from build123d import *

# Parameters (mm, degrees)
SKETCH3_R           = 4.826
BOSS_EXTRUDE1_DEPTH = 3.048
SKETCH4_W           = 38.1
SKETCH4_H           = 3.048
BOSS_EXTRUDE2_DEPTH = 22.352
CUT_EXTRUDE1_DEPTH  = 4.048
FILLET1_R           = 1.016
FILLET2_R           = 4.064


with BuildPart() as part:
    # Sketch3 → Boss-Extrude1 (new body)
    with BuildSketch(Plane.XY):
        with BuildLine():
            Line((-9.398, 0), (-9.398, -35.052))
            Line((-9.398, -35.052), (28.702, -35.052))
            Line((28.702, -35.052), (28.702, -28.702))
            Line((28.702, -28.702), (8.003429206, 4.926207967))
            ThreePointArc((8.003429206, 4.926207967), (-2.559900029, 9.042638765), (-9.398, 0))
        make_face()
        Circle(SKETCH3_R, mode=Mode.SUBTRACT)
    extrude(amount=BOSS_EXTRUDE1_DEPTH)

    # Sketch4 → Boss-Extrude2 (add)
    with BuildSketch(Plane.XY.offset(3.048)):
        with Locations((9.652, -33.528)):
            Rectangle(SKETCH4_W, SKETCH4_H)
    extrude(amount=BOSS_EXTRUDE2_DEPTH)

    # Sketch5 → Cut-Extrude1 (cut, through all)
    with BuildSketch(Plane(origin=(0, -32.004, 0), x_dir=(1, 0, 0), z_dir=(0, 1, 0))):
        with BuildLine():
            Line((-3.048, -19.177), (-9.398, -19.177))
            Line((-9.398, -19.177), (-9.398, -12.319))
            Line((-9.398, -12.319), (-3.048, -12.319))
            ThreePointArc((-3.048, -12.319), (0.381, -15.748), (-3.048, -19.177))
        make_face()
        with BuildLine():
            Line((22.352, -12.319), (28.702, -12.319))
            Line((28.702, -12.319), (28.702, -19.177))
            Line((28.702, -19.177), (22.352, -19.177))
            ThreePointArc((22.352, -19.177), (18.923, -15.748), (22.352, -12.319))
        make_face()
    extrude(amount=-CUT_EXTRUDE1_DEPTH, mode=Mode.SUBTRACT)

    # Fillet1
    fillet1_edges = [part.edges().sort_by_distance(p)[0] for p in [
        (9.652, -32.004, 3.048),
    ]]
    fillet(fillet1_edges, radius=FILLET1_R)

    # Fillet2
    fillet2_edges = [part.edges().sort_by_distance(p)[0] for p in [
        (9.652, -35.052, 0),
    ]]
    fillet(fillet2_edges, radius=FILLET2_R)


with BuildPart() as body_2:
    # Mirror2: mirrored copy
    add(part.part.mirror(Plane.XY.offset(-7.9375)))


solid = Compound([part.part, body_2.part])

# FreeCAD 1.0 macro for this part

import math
import FreeCAD as App
import Part
import Sketcher

V = App.Vector
Q = App.Units.Quantity


def edges_at(feature, points):
    """Names of the edges that pass closest to the given points."""
    edges = feature.Shape.Edges
    near = lambda p: min(range(len(edges)), key=lambda i: edges[i].distToShape(Part.Vertex(*p))[0])
    return sorted({f"Edge{near(p) + 1}" for p in points})


def add_polygon(sketch, points):
    """Adds a closed chain of lines whose ends are joined by coincident constraints."""
    first, n = sketch.GeometryCount, len(points)
    for a, b in zip(points, points[1:] + points[:1]):
        sketch.addGeometry(Part.LineSegment(App.Vector(*a, 0), App.Vector(*b, 0)), False)
    for i in range(n):
        sketch.addConstraint(Sketcher.Constraint("Coincident", first + i, 2, first + (i + 1) % n, 1))

doc = App.newDocument("Part")
body = doc.addObject("PartDesign::Body", "Body")

# Sketch on XY plane
sketch1 = body.newObject("Sketcher::SketchObject", "Sketch")
sketch1.AttachmentSupport = (doc.getObject("XY_Plane"), [""])
sketch1.MapMode = "FlatFace"
sketch1.addGeometry(Part.LineSegment(V(-9.398, 0, 0), V(-9.398, -35.052, 0)), False)
sketch1.addGeometry(Part.LineSegment(V(-9.398, -35.052, 0), V(28.702, -35.052, 0)), False)
sketch1.addGeometry(Part.LineSegment(V(28.702, -35.052, 0), V(28.702, -28.702, 0)), False)
sketch1.addGeometry(Part.LineSegment(V(28.702, -28.702, 0), V(8.003429, 4.926208, 0)), False)
sketch1.addGeometry(Part.ArcOfCircle(Part.Circle(V(0, 0, 0), V(0, 0, 1), 9.398), math.radians(31.612802), math.radians(180)), False)
sketch1.addGeometry(Part.Circle(V(0, 0, 0), V(0, 0, 1), 4.826), False)
sketch1.addConstraint(Sketcher.Constraint("Coincident", 0, 2, 1, 1))
sketch1.addConstraint(Sketcher.Constraint("Coincident", 1, 2, 2, 1))
sketch1.addConstraint(Sketcher.Constraint("Coincident", 2, 2, 3, 1))
sketch1.addConstraint(Sketcher.Constraint("Tangent", 3, 2, 4, 1))
sketch1.addConstraint(Sketcher.Constraint("Tangent", 4, 2, 0, 1))
sketch1.addConstraint(Sketcher.Constraint("Vertical", 0))
sketch1.addConstraint(Sketcher.Constraint("Horizontal", 1))
sketch1.addConstraint(Sketcher.Constraint("Vertical", 2))
sketch1.addConstraint(Sketcher.Constraint("Coincident", 4, 3, -1, 1))
sketch1.addConstraint(Sketcher.Constraint("Coincident", 5, 3, -1, 1))
sketch1.addConstraint(Sketcher.Constraint("Diameter", 5, Q("0.38 in")))
sketch1.addConstraint(Sketcher.Constraint("Radius", 4, Q("0.37 in")))
sketch1.addConstraint(Sketcher.Constraint("DistanceX", 1, 1, 1, 2, Q("1.5 in")))
sketch1.addConstraint(Sketcher.Constraint("DistanceY", 0, 2, 0, 1, Q("1.38 in")))
sketch1.addConstraint(Sketcher.Constraint("DistanceY", 2, 1, 2, 2, Q("0.25 in")))
pad1 = body.newObject("PartDesign::Pad", "Pad")
pad1.Profile = sketch1
pad1.Length = Q("0.12 in")

# Sketch on XY plane
sketch2 = body.newObject("Sketcher::SketchObject", "Sketch001")
sketch2.AttachmentSupport = (doc.getObject("XY_Plane"), [""])
sketch2.MapMode = "FlatFace"
sketch2.AttachmentOffset = App.Placement(V(0, 0, 0.12 * 25.4), App.Rotation())
add_polygon(sketch2, [(-9.398, -32.004), (-9.398, -35.052), (28.702, -35.052), (28.702, -32.004)])  # lines 0-3
sketch2.addConstraint(Sketcher.Constraint("Vertical", 0))
sketch2.addConstraint(Sketcher.Constraint("Horizontal", 1))
sketch2.addConstraint(Sketcher.Constraint("Vertical", 2))
sketch2.addConstraint(Sketcher.Constraint("Horizontal", 3))
sketch2.addConstraint(Sketcher.Constraint("DistanceX", 1, 1, 1, 2, Q("1.5 in")))
sketch2.addConstraint(Sketcher.Constraint("DistanceY", 0, 2, 0, 1, Q("0.12 in")))
sketch2.addConstraint(Sketcher.Constraint("DistanceX", 0, 2, -1, 1, Q("0.37 in")))
sketch2.addConstraint(Sketcher.Constraint("DistanceY", 0, 2, -1, 1, Q("1.38 in")))
pad2 = body.newObject("PartDesign::Pad", "Pad001")
pad2.Profile = sketch2
pad2.Length = Q("0.88 in")

# Sketch on XZ plane
sketch3 = body.newObject("Sketcher::SketchObject", "Sketch002")
sketch3.AttachmentSupport = (doc.getObject("XZ_Plane"), [""])
sketch3.MapMode = "FlatFace"
sketch3.AttachmentOffset = App.Placement(V(0, 0, 1.26 * 25.4), App.Rotation())
sketch3.addGeometry(Part.LineSegment(V(-9.398, 19.177, 0), V(-3.048, 19.177, 0)), False)
sketch3.addGeometry(Part.ArcOfCircle(Part.Circle(V(-3.048, 15.748, 0), V(0, 0, 1), 3.429), math.radians(-90), math.radians(90)), False)
sketch3.addGeometry(Part.LineSegment(V(-3.048, 12.319, 0), V(-9.398, 12.319, 0)), False)
sketch3.addGeometry(Part.LineSegment(V(-9.398, 12.319, 0), V(-9.398, 19.177, 0)), False)
sketch3.addGeometry(Part.LineSegment(V(28.702, 12.319, 0), V(22.352, 12.319, 0)), False)
sketch3.addGeometry(Part.ArcOfCircle(Part.Circle(V(22.352, 15.748, 0), V(0, 0, 1), 3.429), math.radians(90), math.radians(270)), False)
sketch3.addGeometry(Part.LineSegment(V(22.352, 19.177, 0), V(28.702, 19.177, 0)), False)
sketch3.addGeometry(Part.LineSegment(V(28.702, 19.177, 0), V(28.702, 12.319, 0)), False)
sketch3.addConstraint(Sketcher.Constraint("Tangent", 0, 2, 1, 2))
sketch3.addConstraint(Sketcher.Constraint("Tangent", 1, 1, 2, 1))
sketch3.addConstraint(Sketcher.Constraint("Coincident", 2, 2, 3, 1))
sketch3.addConstraint(Sketcher.Constraint("Coincident", 3, 2, 0, 1))
sketch3.addConstraint(Sketcher.Constraint("Tangent", 4, 2, 5, 2))
sketch3.addConstraint(Sketcher.Constraint("Tangent", 5, 1, 6, 1))
sketch3.addConstraint(Sketcher.Constraint("Coincident", 6, 2, 7, 1))
sketch3.addConstraint(Sketcher.Constraint("Coincident", 7, 2, 4, 1))
sketch3.addConstraint(Sketcher.Constraint("Horizontal", 0))
sketch3.addConstraint(Sketcher.Constraint("Horizontal", 2))
sketch3.addConstraint(Sketcher.Constraint("Vertical", 3))
sketch3.addConstraint(Sketcher.Constraint("Horizontal", 4))
sketch3.addConstraint(Sketcher.Constraint("Horizontal", 6))
sketch3.addConstraint(Sketcher.Constraint("Vertical", 7))
sketch3.addConstraint(Sketcher.Constraint("Equal", 1, 5))
sketch3.addConstraint(Sketcher.Constraint("Horizontal", 1, 3, 5, 3))
sketch3.addConstraint(Sketcher.Constraint("Equal", 2, 4))
sketch3.addConstraint(Sketcher.Constraint("Radius", 1, Q("0.135 in")))
sketch3.addConstraint(Sketcher.Constraint("DistanceX", 1, 3, 5, 3, Q("1 in")))
sketch3.addConstraint(Sketcher.Constraint("DistanceX", 0, 1, 0, 2, Q("0.25 in")))
sketch3.addConstraint(Sketcher.Constraint("DistanceX", 1, 3, -1, 1, Q("0.12 in")))
sketch3.addConstraint(Sketcher.Constraint("DistanceY", -1, 1, 1, 3, Q("0.62 in")))
pocket1 = body.newObject("PartDesign::Pocket", "Pocket")
pocket1.Profile = sketch3
pocket1.Type = "ThroughAll"
pocket1.Reversed = True
doc.recompute()

fillet = body.newObject("PartDesign::Fillet", "Fillet")
fillet.Base = (pocket1, edges_at(pocket1, [(9.652, -32.004, 3.048)]))
fillet.Radius = Q("0.04 in")
doc.recompute()

fillet2 = body.newObject("PartDesign::Fillet", "Fillet001")
fillet2.Base = (fillet, edges_at(fillet, [(9.652, -35.052, 0)]))
fillet2.Radius = Q("0.16 in")
body2 = doc.addObject("PartDesign::Body", "Body001")
doc.recompute()

mirroring = doc.addObject("Part::Mirroring", "Mirroring")
mirroring.Source = body
mirroring.Base = V(0, 0, -7.9375)
mirroring.Normal = V(0, 0, 1)
body2.BaseFeature = mirroring
doc.recompute()
mirroring.Visibility = False

doc.recompute()
